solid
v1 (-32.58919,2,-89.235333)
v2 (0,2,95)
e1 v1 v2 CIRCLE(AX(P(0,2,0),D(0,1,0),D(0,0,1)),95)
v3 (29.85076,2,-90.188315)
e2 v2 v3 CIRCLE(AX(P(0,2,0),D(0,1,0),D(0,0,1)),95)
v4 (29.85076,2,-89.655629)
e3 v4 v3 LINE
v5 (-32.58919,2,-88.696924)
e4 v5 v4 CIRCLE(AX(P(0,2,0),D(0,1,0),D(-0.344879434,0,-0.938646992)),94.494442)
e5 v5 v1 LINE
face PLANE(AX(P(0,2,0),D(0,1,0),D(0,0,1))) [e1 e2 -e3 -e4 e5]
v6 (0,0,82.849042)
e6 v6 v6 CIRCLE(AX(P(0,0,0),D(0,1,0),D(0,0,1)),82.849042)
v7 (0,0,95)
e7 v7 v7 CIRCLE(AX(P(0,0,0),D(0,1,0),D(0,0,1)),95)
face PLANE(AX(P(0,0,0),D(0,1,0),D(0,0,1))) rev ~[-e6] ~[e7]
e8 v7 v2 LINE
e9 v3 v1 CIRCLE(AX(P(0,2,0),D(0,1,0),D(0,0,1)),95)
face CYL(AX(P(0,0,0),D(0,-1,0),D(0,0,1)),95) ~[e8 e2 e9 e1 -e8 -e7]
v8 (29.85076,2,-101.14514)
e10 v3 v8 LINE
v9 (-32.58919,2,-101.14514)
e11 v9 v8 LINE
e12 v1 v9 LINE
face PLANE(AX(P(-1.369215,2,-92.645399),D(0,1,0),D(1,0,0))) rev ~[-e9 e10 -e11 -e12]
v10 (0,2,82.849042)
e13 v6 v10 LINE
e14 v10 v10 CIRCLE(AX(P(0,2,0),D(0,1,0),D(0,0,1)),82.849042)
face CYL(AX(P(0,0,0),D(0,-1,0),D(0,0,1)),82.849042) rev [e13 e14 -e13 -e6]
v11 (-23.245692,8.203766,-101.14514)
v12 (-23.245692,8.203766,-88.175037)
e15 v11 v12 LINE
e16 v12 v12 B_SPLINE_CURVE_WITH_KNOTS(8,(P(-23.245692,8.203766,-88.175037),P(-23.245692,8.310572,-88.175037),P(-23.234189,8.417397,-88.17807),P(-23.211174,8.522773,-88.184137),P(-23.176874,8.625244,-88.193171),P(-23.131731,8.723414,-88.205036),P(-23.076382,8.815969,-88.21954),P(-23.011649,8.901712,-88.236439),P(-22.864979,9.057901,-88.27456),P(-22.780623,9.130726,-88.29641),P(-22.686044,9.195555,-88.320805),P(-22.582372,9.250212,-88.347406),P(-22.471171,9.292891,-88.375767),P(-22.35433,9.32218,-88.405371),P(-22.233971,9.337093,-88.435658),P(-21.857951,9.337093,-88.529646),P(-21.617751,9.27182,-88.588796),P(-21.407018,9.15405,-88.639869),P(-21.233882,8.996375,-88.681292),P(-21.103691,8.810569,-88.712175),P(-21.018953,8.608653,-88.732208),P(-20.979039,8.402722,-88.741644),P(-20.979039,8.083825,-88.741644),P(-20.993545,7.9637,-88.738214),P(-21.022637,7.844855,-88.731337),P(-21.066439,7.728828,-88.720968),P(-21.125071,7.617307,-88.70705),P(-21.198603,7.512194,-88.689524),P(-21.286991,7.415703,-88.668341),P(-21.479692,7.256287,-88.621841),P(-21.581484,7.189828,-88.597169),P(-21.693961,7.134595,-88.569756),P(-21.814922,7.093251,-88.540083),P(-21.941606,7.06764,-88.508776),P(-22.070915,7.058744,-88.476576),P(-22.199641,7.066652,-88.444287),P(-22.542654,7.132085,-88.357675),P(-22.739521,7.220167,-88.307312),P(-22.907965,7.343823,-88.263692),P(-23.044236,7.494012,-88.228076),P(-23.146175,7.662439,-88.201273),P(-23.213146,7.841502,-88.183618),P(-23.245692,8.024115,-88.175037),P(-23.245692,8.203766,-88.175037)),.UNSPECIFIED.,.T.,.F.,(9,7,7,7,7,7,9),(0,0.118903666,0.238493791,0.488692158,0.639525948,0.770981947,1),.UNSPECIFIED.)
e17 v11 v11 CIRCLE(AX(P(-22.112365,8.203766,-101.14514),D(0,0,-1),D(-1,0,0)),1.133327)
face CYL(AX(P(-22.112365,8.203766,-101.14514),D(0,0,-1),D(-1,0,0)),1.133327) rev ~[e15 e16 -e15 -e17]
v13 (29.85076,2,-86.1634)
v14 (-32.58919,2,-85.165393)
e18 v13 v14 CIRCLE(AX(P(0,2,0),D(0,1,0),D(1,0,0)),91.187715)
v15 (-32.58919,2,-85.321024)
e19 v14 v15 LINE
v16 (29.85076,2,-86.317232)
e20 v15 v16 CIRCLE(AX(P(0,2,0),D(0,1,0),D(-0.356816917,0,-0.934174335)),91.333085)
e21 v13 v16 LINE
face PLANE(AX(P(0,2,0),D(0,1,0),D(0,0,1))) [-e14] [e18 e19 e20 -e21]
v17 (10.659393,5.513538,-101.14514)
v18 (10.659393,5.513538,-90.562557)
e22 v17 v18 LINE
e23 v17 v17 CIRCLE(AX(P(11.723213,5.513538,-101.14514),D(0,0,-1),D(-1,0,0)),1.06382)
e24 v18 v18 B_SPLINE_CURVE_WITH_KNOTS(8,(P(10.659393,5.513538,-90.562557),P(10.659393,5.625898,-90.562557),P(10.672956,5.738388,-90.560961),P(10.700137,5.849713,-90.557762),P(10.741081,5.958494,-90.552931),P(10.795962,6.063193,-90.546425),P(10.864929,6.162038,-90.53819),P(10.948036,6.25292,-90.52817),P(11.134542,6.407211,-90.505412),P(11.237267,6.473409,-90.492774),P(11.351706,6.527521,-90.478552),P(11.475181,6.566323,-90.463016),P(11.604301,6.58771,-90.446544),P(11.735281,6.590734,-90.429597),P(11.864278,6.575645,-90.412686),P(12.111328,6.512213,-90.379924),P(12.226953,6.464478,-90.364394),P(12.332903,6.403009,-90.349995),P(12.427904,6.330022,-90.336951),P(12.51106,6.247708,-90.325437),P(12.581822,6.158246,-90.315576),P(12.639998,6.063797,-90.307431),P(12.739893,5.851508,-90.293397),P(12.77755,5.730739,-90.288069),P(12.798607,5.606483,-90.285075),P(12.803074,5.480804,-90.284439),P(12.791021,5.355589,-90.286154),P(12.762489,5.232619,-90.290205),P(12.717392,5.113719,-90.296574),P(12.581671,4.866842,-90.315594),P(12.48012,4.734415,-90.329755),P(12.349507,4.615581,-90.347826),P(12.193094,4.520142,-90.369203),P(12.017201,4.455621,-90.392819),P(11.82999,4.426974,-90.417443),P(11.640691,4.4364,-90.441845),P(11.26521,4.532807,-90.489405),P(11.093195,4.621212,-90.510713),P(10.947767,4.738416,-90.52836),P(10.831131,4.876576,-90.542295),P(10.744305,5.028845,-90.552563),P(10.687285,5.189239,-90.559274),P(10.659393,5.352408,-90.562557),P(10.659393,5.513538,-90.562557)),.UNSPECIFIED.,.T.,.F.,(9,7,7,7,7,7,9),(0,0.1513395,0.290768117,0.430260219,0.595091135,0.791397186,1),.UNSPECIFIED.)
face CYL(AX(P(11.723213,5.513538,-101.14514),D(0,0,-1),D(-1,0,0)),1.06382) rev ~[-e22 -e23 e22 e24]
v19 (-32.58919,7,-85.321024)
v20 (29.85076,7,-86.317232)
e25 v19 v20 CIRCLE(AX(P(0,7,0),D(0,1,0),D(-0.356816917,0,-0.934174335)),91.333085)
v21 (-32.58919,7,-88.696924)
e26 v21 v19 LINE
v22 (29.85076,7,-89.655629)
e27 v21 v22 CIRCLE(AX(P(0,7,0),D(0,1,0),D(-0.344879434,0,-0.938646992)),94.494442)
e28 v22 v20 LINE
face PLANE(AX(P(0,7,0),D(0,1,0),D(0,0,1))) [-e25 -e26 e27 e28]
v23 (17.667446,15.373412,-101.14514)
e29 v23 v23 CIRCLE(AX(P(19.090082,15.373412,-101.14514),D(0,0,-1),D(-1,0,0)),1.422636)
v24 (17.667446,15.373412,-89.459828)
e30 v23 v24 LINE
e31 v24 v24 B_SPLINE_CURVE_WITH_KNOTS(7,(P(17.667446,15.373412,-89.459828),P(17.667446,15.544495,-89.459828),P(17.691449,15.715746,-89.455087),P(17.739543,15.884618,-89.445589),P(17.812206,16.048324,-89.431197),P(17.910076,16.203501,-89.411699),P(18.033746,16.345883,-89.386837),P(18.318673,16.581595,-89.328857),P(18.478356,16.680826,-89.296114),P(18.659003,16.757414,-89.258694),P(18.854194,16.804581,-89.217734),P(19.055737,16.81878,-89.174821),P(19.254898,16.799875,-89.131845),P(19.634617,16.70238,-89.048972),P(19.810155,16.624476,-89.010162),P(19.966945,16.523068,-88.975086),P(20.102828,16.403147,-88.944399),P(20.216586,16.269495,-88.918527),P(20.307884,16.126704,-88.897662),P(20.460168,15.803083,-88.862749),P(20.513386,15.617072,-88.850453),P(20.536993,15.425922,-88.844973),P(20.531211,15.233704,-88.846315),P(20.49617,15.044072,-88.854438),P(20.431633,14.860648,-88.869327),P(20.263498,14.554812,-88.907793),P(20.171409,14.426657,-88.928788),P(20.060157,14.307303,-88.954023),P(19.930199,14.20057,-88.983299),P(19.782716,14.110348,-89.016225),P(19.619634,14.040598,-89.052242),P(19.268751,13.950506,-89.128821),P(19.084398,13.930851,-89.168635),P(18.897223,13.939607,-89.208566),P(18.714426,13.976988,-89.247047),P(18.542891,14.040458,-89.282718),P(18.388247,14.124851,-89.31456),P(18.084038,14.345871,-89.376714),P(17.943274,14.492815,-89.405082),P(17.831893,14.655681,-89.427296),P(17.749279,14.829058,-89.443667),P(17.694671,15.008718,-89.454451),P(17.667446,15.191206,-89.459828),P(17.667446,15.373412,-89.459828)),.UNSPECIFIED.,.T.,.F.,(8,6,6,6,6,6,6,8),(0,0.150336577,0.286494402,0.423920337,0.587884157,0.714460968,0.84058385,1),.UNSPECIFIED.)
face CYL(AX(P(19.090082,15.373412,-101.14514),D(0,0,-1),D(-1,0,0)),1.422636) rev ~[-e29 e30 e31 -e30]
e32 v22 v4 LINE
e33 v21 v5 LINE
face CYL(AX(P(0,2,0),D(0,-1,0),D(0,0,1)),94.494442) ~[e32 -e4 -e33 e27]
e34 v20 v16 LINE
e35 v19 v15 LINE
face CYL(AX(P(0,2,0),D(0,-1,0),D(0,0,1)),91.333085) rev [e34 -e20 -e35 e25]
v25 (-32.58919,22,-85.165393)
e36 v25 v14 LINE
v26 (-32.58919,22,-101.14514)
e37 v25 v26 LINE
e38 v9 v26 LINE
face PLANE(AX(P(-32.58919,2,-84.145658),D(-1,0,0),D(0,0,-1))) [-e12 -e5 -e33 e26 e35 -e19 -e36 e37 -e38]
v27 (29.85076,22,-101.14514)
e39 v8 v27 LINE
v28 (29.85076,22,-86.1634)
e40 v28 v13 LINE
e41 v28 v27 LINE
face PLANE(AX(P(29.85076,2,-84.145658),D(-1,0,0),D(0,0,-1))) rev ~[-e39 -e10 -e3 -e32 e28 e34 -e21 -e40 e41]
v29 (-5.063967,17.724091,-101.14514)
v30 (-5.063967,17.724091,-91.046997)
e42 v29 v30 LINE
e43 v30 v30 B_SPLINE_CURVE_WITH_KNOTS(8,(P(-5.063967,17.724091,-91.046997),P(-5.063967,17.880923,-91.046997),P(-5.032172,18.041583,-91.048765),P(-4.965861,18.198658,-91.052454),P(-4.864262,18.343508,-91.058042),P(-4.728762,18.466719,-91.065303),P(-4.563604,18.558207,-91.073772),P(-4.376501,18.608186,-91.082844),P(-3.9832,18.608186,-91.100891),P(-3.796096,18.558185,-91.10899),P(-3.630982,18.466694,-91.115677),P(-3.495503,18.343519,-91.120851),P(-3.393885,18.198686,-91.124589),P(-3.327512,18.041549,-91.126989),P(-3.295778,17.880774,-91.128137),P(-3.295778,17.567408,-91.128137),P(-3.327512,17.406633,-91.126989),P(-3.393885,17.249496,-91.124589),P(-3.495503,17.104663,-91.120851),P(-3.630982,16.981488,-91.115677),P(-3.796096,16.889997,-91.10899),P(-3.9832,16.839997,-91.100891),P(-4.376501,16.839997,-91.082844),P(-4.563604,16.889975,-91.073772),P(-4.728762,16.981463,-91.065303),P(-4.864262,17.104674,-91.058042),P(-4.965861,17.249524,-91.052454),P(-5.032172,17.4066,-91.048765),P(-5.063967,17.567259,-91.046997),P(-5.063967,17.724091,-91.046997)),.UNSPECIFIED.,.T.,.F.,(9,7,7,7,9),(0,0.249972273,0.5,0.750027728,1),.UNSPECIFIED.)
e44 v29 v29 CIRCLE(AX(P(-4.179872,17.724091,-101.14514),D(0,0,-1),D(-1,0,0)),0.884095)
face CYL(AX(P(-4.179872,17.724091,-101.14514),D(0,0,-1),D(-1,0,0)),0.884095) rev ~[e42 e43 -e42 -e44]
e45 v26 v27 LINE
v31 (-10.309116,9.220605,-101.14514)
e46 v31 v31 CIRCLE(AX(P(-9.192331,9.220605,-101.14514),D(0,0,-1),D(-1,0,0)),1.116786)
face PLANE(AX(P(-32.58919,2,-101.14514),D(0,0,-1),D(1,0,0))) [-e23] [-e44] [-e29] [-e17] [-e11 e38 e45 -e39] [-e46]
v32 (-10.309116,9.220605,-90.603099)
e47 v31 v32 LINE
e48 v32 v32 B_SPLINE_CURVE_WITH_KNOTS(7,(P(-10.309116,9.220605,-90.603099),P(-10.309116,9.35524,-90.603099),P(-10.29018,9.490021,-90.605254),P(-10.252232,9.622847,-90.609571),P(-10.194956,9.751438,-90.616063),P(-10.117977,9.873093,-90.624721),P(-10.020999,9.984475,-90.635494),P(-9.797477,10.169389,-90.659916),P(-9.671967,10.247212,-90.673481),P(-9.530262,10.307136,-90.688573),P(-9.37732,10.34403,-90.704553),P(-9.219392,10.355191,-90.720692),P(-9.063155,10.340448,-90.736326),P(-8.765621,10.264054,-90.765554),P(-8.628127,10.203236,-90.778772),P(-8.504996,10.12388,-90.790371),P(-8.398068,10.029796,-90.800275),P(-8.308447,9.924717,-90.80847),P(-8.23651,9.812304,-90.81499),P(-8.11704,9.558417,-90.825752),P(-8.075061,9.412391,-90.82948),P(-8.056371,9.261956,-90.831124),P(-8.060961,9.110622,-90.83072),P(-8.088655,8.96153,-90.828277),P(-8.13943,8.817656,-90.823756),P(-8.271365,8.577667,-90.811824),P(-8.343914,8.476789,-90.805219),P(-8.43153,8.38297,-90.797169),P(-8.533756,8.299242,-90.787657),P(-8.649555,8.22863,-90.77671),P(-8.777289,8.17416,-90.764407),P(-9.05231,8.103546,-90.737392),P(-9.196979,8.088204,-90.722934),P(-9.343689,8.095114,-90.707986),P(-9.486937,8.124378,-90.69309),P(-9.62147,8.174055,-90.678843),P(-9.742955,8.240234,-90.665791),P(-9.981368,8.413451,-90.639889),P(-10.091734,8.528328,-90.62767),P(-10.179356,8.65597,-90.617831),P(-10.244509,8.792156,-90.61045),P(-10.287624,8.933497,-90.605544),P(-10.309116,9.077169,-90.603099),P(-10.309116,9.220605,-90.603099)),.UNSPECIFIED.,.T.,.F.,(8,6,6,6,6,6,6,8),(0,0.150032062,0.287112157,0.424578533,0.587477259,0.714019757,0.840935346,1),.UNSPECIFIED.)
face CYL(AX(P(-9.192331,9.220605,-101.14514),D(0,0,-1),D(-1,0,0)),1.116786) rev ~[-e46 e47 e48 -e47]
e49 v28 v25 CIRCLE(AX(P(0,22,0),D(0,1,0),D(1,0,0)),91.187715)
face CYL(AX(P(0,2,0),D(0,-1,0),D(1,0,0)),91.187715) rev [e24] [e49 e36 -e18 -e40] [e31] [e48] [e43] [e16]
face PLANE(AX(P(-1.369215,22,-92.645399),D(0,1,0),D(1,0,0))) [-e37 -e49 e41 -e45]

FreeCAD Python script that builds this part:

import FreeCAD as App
import Part
import Sketcher
from FreeCAD import Vector


def add_polygon(sketch, points):
    """Adds a closed chain of lines whose ends are joined by coincident constraints."""
    first, n = sketch.GeometryCount, len(points)
    for a, b in zip(points, points[1:] + points[:1]):
        sketch.addGeometry(Part.LineSegment(App.Vector(*a, 0), App.Vector(*b, 0)), False)
    for i in range(n):
        sketch.addConstraint(Sketcher.Constraint("Coincident", first + i, 2, first + (i + 1) % n, 1))

doc = App.newDocument("Part")
body = doc.addObject("PartDesign::Body", "Body")

# Sketch on XZ plane
sketch1 = doc.addObject("Sketcher::SketchObject", "Sketch")
body.addObject(sketch1)
sketch1.AttachmentSupport = (doc.XZ_Plane, [""])
sketch1.MapMode = "FlatFace"
sketch1.addGeometry([
    Part.Circle(Vector(0, 0, 0), Vector(0, 0, 1), 95),
    Part.Circle(Vector(0, 0, 0), Vector(0, 0, 1), 82.849042),
], False)
sketch1.addConstraint([
    Sketcher.Constraint("Coincident", 0, 3, -1, 1),
    Sketcher.Constraint("Coincident", 1, 3, -1, 1),
    Sketcher.Constraint("Diameter", 0, 190.0),
    Sketcher.Constraint("Diameter", 1, 165.698085),
])
pad1 = doc.addObject("PartDesign::Pad", "Pad")
body.addObject(pad1)
pad1.Profile = sketch1
pad1.Length = 2
pad1.Reversed = True

# Sketch on XZ plane
sketch2 = doc.addObject("Sketcher::SketchObject", "Sketch001")
body.addObject(sketch2)
sketch2.AttachmentSupport = (doc.XZ_Plane, [""])
sketch2.MapMode = "FlatFace"
sketch2.AttachmentOffset = App.Placement(Vector(0, 0, -2), App.Rotation())
sketch2.addGeometry([
    Part.Circle(Vector(0, 0, 0), Vector(0, 0, 1), 94.494442),
    Part.Circle(Vector(0, 0, 0), Vector(0, 0, 1), 91.333085),
], False)
sketch2.addConstraint([
    Sketcher.Constraint("Coincident", 0, 3, -1, 1),
    Sketcher.Constraint("Coincident", 1, 3, -1, 1),
    Sketcher.Constraint("Diameter", 1, 182.666169),
    Sketcher.Constraint("Diameter", 0, 188.988884),
])
pad2 = doc.addObject("PartDesign::Pad", "Pad001")
body.addObject(pad2)
pad2.Profile = sketch2
pad2.Length = 5
pad2.Reversed = True

# Sketch on XZ plane
sketch3 = doc.addObject("Sketcher::SketchObject", "Sketch002")
body.addObject(sketch3)
sketch3.AttachmentSupport = (doc.XZ_Plane, [""])
sketch3.MapMode = "FlatFace"
sketch3.AttachmentOffset = App.Placement(Vector(0, 0, -2), App.Rotation())
add_polygon(sketch3, [(-32.58919, -101.14514), (-32.58919, -84.145658), (29.85076, -84.145658), (29.85076, -101.14514)])  # lines 0-3
sketch3.addConstraint([
    Sketcher.Constraint("Vertical", 0),
    Sketcher.Constraint("Horizontal", 1),
    Sketcher.Constraint("Vertical", 2),
    Sketcher.Constraint("Horizontal", 3),
    Sketcher.Constraint("DistanceX", 1, 1, 1, 2, 62.43995),
    Sketcher.Constraint("DistanceY", 0, 1, 0, 2, 16.999482),
    Sketcher.Constraint("DistanceX", 0, 2, -1, 1, 32.58919),
    Sketcher.Constraint("DistanceY", 0, 2, -1, 1, 84.145658),
])
pad3 = doc.addObject("PartDesign::Pad", "Pad002")
body.addObject(pad3)
pad3.Profile = sketch3
pad3.Length = 20
pad3.Reversed = True

# Sketch on XZ plane
sketch4 = doc.addObject("Sketcher::SketchObject", "Sketch003")
body.addObject(sketch4)
sketch4.AttachmentSupport = (doc.XZ_Plane, [""])
sketch4.MapMode = "FlatFace"
sketch4.AttachmentOffset = App.Placement(Vector(0, 0, -2), App.Rotation())
sketch4.addGeometry(Part.Circle(Vector(0, 0, 0), Vector(0, 0, 1), 91.187715), False)
sketch4.addConstraint([
    Sketcher.Constraint("Coincident", 0, 3, -1, 1),
    Sketcher.Constraint("Diameter", 0, 182.375431),
])
pocket1 = doc.addObject("PartDesign::Pocket", "Pocket")
body.addObject(pocket1)
pocket1.Profile = sketch4
pocket1.Length = 20

# Sketch on XY plane
sketch5 = doc.addObject("Sketcher::SketchObject", "Sketch004")
body.addObject(sketch5)
sketch5.AttachmentSupport = (doc.XY_Plane, [""])
sketch5.MapMode = "FlatFace"
sketch5.AttachmentOffset = App.Placement(Vector(0, 0, -101.14514), App.Rotation())
sketch5.addGeometry([
    Part.Circle(Vector(-22.112365, 8.203766, 0), Vector(0, 0, 1), 1.133327),  # 0
    Part.Circle(Vector(-4.179872, 17.724091, 0), Vector(0, 0, 1), 0.884095),  # 1
    Part.Circle(Vector(11.723213, 5.513538, 0), Vector(0, 0, 1), 1.06382),  # 2
    Part.Circle(Vector(-9.192331, 9.220605, 0), Vector(0, 0, 1), 1.116786),  # 3
    Part.Circle(Vector(19.090082, 15.373412, 0), Vector(0, 0, 1), 1.422636),  # 4
], False)
sketch5.addConstraint([
    Sketcher.Constraint("Diameter", 1, 1.768189),
    Sketcher.Constraint("Diameter", 2, 2.12764),
    Sketcher.Constraint("Diameter", 3, 2.233572),
    Sketcher.Constraint("Diameter", 4, 2.845272),
    Sketcher.Constraint("Diameter", 0, 2.266653),
    Sketcher.Constraint("DistanceY", -1, 1, 1, 3, 17.724091),
    Sketcher.Constraint("DistanceX", 3, 3, -1, 1, 9.192331),
    Sketcher.Constraint("DistanceX", 0, 3, 2, 3, 33.835579),
    Sketcher.Constraint("DistanceY", 2, 3, 0, 3, 2.690228),
    Sketcher.Constraint("DistanceX", 3, 3, 1, 3, 5.012459),
    Sketcher.Constraint("DistanceY", 0, 3, 3, 3, 1.016838),
    Sketcher.Constraint("DistanceX", 2, 3, 4, 3, 7.366869),
    Sketcher.Constraint("DistanceY", 4, 3, 1, 3, 2.350679),
    Sketcher.Constraint("DistanceX", 0, 3, -1, 1, 22.112365),
    Sketcher.Constraint("DistanceY", -1, 1, 0, 3, 8.203766),
])
pocket2 = doc.addObject("PartDesign::Pocket", "Pocket001")
body.addObject(pocket2)
pocket2.Profile = sketch5
pocket2.Length = 25
pocket2.Reversed = True

doc.recompute()
